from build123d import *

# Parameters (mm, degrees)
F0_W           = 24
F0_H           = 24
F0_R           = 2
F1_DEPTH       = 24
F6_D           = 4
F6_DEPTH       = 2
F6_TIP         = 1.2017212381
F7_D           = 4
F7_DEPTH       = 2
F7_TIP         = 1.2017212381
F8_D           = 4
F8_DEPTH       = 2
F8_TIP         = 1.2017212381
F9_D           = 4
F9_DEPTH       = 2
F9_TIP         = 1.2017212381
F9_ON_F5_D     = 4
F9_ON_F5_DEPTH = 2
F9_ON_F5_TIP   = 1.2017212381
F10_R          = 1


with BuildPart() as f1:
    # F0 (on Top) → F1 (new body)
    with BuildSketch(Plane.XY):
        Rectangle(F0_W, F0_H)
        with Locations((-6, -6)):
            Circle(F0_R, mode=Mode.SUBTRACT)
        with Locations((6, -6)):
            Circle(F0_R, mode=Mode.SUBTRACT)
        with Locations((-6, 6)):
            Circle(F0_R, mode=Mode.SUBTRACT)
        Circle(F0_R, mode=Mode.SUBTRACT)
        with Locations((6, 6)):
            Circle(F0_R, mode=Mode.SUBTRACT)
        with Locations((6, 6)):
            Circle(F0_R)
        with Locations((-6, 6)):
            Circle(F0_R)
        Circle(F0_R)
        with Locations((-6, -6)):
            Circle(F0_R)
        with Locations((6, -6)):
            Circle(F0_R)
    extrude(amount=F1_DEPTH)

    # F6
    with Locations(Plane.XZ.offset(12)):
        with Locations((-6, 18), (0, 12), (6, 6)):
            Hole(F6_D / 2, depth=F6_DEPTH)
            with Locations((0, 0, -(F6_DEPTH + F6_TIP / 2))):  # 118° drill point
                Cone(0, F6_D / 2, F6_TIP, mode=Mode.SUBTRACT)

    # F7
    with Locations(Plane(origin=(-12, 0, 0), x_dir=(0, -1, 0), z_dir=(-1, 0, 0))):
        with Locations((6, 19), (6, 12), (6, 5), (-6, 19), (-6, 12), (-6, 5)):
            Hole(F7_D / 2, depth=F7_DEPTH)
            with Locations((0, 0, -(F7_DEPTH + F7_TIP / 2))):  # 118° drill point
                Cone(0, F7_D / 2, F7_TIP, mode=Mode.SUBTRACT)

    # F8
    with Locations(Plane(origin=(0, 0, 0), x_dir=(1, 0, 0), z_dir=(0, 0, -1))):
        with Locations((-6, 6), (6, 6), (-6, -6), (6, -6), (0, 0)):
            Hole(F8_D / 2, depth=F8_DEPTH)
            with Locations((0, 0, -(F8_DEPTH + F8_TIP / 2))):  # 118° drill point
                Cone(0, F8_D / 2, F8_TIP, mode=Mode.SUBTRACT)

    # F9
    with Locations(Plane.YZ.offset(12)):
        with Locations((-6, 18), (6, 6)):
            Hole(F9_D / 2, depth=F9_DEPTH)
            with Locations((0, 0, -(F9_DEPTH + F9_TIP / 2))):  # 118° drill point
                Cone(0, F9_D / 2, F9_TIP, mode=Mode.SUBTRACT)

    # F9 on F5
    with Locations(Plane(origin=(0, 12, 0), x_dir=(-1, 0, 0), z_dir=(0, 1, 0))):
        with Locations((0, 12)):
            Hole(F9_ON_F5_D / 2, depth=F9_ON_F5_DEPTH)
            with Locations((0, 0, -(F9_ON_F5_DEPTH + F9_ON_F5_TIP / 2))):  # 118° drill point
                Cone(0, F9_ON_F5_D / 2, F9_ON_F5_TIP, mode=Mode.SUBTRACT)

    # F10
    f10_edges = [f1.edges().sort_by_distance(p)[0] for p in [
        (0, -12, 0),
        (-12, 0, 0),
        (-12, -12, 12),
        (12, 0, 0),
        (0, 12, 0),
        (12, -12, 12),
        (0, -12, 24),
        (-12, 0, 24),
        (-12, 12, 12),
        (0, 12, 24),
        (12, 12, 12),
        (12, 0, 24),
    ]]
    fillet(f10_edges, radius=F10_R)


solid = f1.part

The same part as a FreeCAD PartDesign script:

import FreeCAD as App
import Part
import Sketcher
from FreeCAD import Vector


def edges_at(feature, points):
    """Names of the edges that pass closest to the given points."""
    edges = feature.Shape.Edges
    near = lambda p: min(range(len(edges)), key=lambda i: edges[i].distToShape(Part.Vertex(*p))[0])
    return sorted({f"Edge{near(p) + 1}" for p in points})

doc = App.newDocument("Part")
params = doc.addObject("Spreadsheet::Sheet", "Params")
for row, (alias, value) in enumerate([
    ("sketch1_width", "24 mm"),
    ("pad1_length", "24 mm"),
    ("sketch2_diameter", "4 mm"),
    ("hole_diameter", "4 mm"),
    ("hole_depth", "2 mm"),
    ("sketch3_diameter", "4 mm"),
    ("hole2_diameter", "4 mm"),
    ("hole2_depth", "2 mm"),
    ("sketch4_diameter", "4 mm"),
    ("hole3_diameter", "4 mm"),
    ("hole3_depth", "2 mm"),
    ("sketch5_diameter", "4 mm"),
    ("hole4_diameter", "4 mm"),
    ("hole4_depth", "2 mm"),
    ("sketch6_diameter", "4 mm"),
    ("hole5_diameter", "4 mm"),
    ("hole5_depth", "2 mm"),
    ("fillet_radius", "1 mm"),
], start=1):
    params.set(f"A{row}", alias)
    params.set(f"B{row}", "=" + value)
    params.setAlias(f"B{row}", alias)

body = doc.addObject("PartDesign::Body", "Body")

# Sketch on XY plane
sketch1 = body.newObject("Sketcher::SketchObject", "Sketch")
sketch1.AttachmentSupport = (doc.getObject("XY_Plane"), [""])
sketch1.MapMode = "FlatFace"
sketch1.addGeometry(Part.LineSegment(Vector(-12, 12, 0), Vector(-12, -12, 0)), False)
sketch1.addGeometry(Part.LineSegment(Vector(-12, -12, 0), Vector(12, -12, 0)), False)
sketch1.addGeometry(Part.LineSegment(Vector(12, -12, 0), Vector(12, 12, 0)), False)
sketch1.addGeometry(Part.LineSegment(Vector(12, 12, 0), Vector(-12, 12, 0)), False)
sketch1.addConstraint(Sketcher.Constraint("Coincident", 0, 2, 1, 1))
sketch1.addConstraint(Sketcher.Constraint("Coincident", 1, 2, 2, 1))
sketch1.addConstraint(Sketcher.Constraint("Coincident", 2, 2, 3, 1))
sketch1.addConstraint(Sketcher.Constraint("Coincident", 3, 2, 0, 1))
sketch1.addConstraint(Sketcher.Constraint("Vertical", 0))
sketch1.addConstraint(Sketcher.Constraint("Horizontal", 1))
sketch1.addConstraint(Sketcher.Constraint("Vertical", 2))
sketch1.addConstraint(Sketcher.Constraint("Horizontal", 3))
sketch1.addConstraint(Sketcher.Constraint("Symmetric", 0, 2, 2, 2, -1, 1))
sketch1.addConstraint(Sketcher.Constraint("Equal", 3, 0))
sketch1.addConstraint(Sketcher.Constraint("DistanceX", 1, 1, 1, 2, 24.0))
sketch1.setExpression("Constraints[10]", "Params.sketch1_width")
pad1 = body.newObject("PartDesign::Pad", "Pad")
pad1.Profile = sketch1
pad1.setExpression("Length", "Params.pad1_length")

# Sketch on XZ plane
sketch2 = body.newObject("Sketcher::SketchObject", "Sketch001")
sketch2.AttachmentSupport = (doc.getObject("XZ_Plane"), [""])
sketch2.MapMode = "FlatFace"
sketch2.AttachmentOffset = App.Placement(Vector(0, 0, 12), App.Rotation())
sketch2.addGeometry(Part.Circle(Vector(-6, 18, 0), Vector(0, 0, 1), 2), False)
sketch2.addGeometry(Part.Circle(Vector(0, 12, 0), Vector(0, 0, 1), 2), False)
sketch2.addGeometry(Part.Circle(Vector(6, 6, 0), Vector(0, 0, 1), 2), False)
sketch2.addConstraint(Sketcher.Constraint("Equal", 0, 1))
sketch2.addConstraint(Sketcher.Constraint("Equal", 1, 2))
sketch2.addConstraint(Sketcher.Constraint("PointOnObject", 1, 3, -2))
sketch2.addConstraint(Sketcher.Constraint("Diameter", 0, 4.0))
sketch2.addConstraint(Sketcher.Constraint("DistanceX", 0, 3, -1, 1, 6.0))
sketch2.addConstraint(Sketcher.Constraint("DistanceY", -1, 1, 0, 3, 18.0))
sketch2.addConstraint(Sketcher.Constraint("DistanceY", -1, 1, 1, 3, 12.0))
sketch2.addConstraint(Sketcher.Constraint("DistanceX", -1, 1, 2, 3, 6.0))
sketch2.addConstraint(Sketcher.Constraint("DistanceY", -1, 1, 2, 3, 6.0))
sketch2.setExpression("Constraints[3]", "Params.sketch2_diameter")
doc.recompute()
hole = body.newObject("PartDesign::Hole", "Hole")
hole.Profile = sketch2
hole.ThreadType = "None"
hole.setExpression("Diameter", "Params.hole_diameter")
hole.DepthType = "Dimension"
hole.setExpression("Depth", "Params.hole_depth")
hole.DrillPoint = "Angled"
hole.DrillPointAngle = 118

# Sketch on YZ plane
sketch3 = body.newObject("Sketcher::SketchObject", "Sketch002")
sketch3.AttachmentSupport = (doc.getObject("YZ_Plane"), [""])
sketch3.MapMode = "FlatFace"
sketch3.AttachmentOffset = App.Placement(Vector(0, 0, -12), App.Rotation())
sketch3.addGeometry(Part.Circle(Vector(-6, 19, 0), Vector(0, 0, 1), 2), False)
sketch3.addGeometry(Part.Circle(Vector(-6, 12, 0), Vector(0, 0, 1), 2), False)
sketch3.addGeometry(Part.Circle(Vector(-6, 5, 0), Vector(0, 0, 1), 2), False)
sketch3.addGeometry(Part.Circle(Vector(6, 19, 0), Vector(0, 0, 1), 2), False)
sketch3.addGeometry(Part.Circle(Vector(6, 12, 0), Vector(0, 0, 1), 2), False)
sketch3.addGeometry(Part.Circle(Vector(6, 5, 0), Vector(0, 0, 1), 2), False)
sketch3.addConstraint(Sketcher.Constraint("Equal", 0, 1))
sketch3.addConstraint(Sketcher.Constraint("Equal", 1, 2))
sketch3.addConstraint(Sketcher.Constraint("Equal", 2, 3))
sketch3.addConstraint(Sketcher.Constraint("Equal", 3, 4))
sketch3.addConstraint(Sketcher.Constraint("Equal", 4, 5))
sketch3.addConstraint(Sketcher.Constraint("Symmetric", 0, 3, 3, 3, -2))
sketch3.addConstraint(Sketcher.Constraint("Symmetric", 1, 3, 4, 3, -2))
sketch3.addConstraint(Sketcher.Constraint("Symmetric", 2, 3, 5, 3, -2))
sketch3.addConstraint(Sketcher.Constraint("Vertical", 0, 3, 1, 3))
sketch3.addConstraint(Sketcher.Constraint("Vertical", 1, 3, 2, 3))
sketch3.addConstraint(Sketcher.Constraint("Diameter", 0, 4.0))
sketch3.addConstraint(Sketcher.Constraint("DistanceX", 0, 3, -1, 1, 6.0))
sketch3.addConstraint(Sketcher.Constraint("DistanceY", -1, 1, 0, 3, 19.0))
sketch3.addConstraint(Sketcher.Constraint("DistanceY", -1, 1, 1, 3, 12.0))
sketch3.addConstraint(Sketcher.Constraint("DistanceY", -1, 1, 2, 3, 5.0))
sketch3.setExpression("Constraints[10]", "Params.sketch3_diameter")
doc.recompute()
hole2 = body.newObject("PartDesign::Hole", "Hole001")
hole2.Profile = sketch3
hole2.ThreadType = "None"
hole2.setExpression("Diameter", "Params.hole2_diameter")
hole2.DepthType = "Dimension"
hole2.setExpression("Depth", "Params.hole2_depth")
hole2.DrillPoint = "Angled"
hole2.DrillPointAngle = 118
hole2.Reversed = True

# Sketch on XY plane
sketch4 = body.newObject("Sketcher::SketchObject", "Sketch003")
sketch4.AttachmentSupport = (doc.getObject("XY_Plane"), [""])
sketch4.MapMode = "FlatFace"
sketch4.addGeometry(Part.Circle(Vector(-6, -6, 0), Vector(0, 0, 1), 2), False)
sketch4.addGeometry(Part.Circle(Vector(6, -6, 0), Vector(0, 0, 1), 2), False)
sketch4.addGeometry(Part.Circle(Vector(-6, 6, 0), Vector(0, 0, 1), 2), False)
sketch4.addGeometry(Part.Circle(Vector(6, 6, 0), Vector(0, 0, 1), 2), False)
sketch4.addGeometry(Part.Circle(Vector(0, 0, 0), Vector(0, 0, 1), 2), False)
sketch4.addConstraint(Sketcher.Constraint("Coincident", 4, 3, -1, 1))
sketch4.addConstraint(Sketcher.Constraint("Equal", 0, 1))
sketch4.addConstraint(Sketcher.Constraint("Equal", 1, 2))
sketch4.addConstraint(Sketcher.Constraint("Equal", 2, 3))
sketch4.addConstraint(Sketcher.Constraint("Equal", 3, 4))
sketch4.addConstraint(Sketcher.Constraint("Symmetric", 1, 3, 2, 3, -1, 1))
sketch4.addConstraint(Sketcher.Constraint("Symmetric", 0, 3, 3, 3, -1, 1))
sketch4.addConstraint(Sketcher.Constraint("Symmetric", 0, 3, 1, 3, -2))
sketch4.addConstraint(Sketcher.Constraint("Diameter", 0, 4.0))
sketch4.addConstraint(Sketcher.Constraint("DistanceX", 0, 3, -1, 1, 6.0))
sketch4.addConstraint(Sketcher.Constraint("DistanceY", 0, 3, -1, 1, 6.0))
sketch4.setExpression("Constraints[8]", "Params.sketch4_diameter")
doc.recompute()
hole3 = body.newObject("PartDesign::Hole", "Hole002")
hole3.Profile = sketch4
hole3.ThreadType = "None"
hole3.setExpression("Diameter", "Params.hole3_diameter")
hole3.DepthType = "Dimension"
hole3.setExpression("Depth", "Params.hole3_depth")
hole3.DrillPoint = "Angled"
hole3.DrillPointAngle = 118
hole3.Reversed = True

# Sketch on YZ plane
sketch5 = body.newObject("Sketcher::SketchObject", "Sketch004")
sketch5.AttachmentSupport = (doc.getObject("YZ_Plane"), [""])
sketch5.MapMode = "FlatFace"
sketch5.AttachmentOffset = App.Placement(Vector(0, 0, 12), App.Rotation())
sketch5.addGeometry(Part.Circle(Vector(-6, 18, 0), Vector(0, 0, 1), 2), False)
sketch5.addGeometry(Part.Circle(Vector(6, 6, 0), Vector(0, 0, 1), 2), False)
sketch5.addConstraint(Sketcher.Constraint("Equal", 0, 1))
sketch5.addConstraint(Sketcher.Constraint("Diameter", 0, 4.0))
sketch5.addConstraint(Sketcher.Constraint("DistanceX", 0, 3, -1, 1, 6.0))
sketch5.addConstraint(Sketcher.Constraint("DistanceY", -1, 1, 0, 3, 18.0))
sketch5.addConstraint(Sketcher.Constraint("DistanceX", -1, 1, 1, 3, 6.0))
sketch5.addConstraint(Sketcher.Constraint("DistanceY", -1, 1, 1, 3, 6.0))
sketch5.setExpression("Constraints[1]", "Params.sketch5_diameter")
doc.recompute()
hole4 = body.newObject("PartDesign::Hole", "Hole003")
hole4.Profile = sketch5
hole4.ThreadType = "None"
hole4.setExpression("Diameter", "Params.hole4_diameter")
hole4.DepthType = "Dimension"
hole4.setExpression("Depth", "Params.hole4_depth")
hole4.DrillPoint = "Angled"
hole4.DrillPointAngle = 118

# Sketch on XZ plane
sketch6 = body.newObject("Sketcher::SketchObject", "Sketch005")
sketch6.AttachmentSupport = (doc.getObject("XZ_Plane"), [""])
sketch6.MapMode = "FlatFace"
sketch6.AttachmentOffset = App.Placement(Vector(0, 0, -12), App.Rotation())
sketch6.addGeometry(Part.Circle(Vector(0, 12, 0), Vector(0, 0, 1), 2), False)
sketch6.addConstraint(Sketcher.Constraint("PointOnObject", 0, 3, -2))
sketch6.addConstraint(Sketcher.Constraint("Diameter", 0, 4.0))
sketch6.addConstraint(Sketcher.Constraint("DistanceY", -1, 1, 0, 3, 12.0))
sketch6.setExpression("Constraints[1]", "Params.sketch6_diameter")
doc.recompute()
hole5 = body.newObject("PartDesign::Hole", "Hole004")
hole5.Profile = sketch6
hole5.ThreadType = "None"
hole5.setExpression("Diameter", "Params.hole5_diameter")
hole5.DepthType = "Dimension"
hole5.setExpression("Depth", "Params.hole5_depth")
hole5.DrillPoint = "Angled"
hole5.DrillPointAngle = 118
hole5.Reversed = True
doc.recompute()

fillet = body.newObject("PartDesign::Fillet", "Fillet")
fillet.Base = (hole5, edges_at(hole5, [
    (0, -12, 0),
    (-12, 0, 0),
    (-12, -12, 12),
    (12, 0, 0),
    (0, 12, 0),
    (12, -12, 12),
    (0, -12, 24),
    (-12, 0, 24),
    (-12, 12, 12),
    (0, 12, 24),
    (12, 12, 12),
    (12, 0, 24),
]))
fillet.setExpression("Radius", "Params.fillet_radius")

doc.recompute()
